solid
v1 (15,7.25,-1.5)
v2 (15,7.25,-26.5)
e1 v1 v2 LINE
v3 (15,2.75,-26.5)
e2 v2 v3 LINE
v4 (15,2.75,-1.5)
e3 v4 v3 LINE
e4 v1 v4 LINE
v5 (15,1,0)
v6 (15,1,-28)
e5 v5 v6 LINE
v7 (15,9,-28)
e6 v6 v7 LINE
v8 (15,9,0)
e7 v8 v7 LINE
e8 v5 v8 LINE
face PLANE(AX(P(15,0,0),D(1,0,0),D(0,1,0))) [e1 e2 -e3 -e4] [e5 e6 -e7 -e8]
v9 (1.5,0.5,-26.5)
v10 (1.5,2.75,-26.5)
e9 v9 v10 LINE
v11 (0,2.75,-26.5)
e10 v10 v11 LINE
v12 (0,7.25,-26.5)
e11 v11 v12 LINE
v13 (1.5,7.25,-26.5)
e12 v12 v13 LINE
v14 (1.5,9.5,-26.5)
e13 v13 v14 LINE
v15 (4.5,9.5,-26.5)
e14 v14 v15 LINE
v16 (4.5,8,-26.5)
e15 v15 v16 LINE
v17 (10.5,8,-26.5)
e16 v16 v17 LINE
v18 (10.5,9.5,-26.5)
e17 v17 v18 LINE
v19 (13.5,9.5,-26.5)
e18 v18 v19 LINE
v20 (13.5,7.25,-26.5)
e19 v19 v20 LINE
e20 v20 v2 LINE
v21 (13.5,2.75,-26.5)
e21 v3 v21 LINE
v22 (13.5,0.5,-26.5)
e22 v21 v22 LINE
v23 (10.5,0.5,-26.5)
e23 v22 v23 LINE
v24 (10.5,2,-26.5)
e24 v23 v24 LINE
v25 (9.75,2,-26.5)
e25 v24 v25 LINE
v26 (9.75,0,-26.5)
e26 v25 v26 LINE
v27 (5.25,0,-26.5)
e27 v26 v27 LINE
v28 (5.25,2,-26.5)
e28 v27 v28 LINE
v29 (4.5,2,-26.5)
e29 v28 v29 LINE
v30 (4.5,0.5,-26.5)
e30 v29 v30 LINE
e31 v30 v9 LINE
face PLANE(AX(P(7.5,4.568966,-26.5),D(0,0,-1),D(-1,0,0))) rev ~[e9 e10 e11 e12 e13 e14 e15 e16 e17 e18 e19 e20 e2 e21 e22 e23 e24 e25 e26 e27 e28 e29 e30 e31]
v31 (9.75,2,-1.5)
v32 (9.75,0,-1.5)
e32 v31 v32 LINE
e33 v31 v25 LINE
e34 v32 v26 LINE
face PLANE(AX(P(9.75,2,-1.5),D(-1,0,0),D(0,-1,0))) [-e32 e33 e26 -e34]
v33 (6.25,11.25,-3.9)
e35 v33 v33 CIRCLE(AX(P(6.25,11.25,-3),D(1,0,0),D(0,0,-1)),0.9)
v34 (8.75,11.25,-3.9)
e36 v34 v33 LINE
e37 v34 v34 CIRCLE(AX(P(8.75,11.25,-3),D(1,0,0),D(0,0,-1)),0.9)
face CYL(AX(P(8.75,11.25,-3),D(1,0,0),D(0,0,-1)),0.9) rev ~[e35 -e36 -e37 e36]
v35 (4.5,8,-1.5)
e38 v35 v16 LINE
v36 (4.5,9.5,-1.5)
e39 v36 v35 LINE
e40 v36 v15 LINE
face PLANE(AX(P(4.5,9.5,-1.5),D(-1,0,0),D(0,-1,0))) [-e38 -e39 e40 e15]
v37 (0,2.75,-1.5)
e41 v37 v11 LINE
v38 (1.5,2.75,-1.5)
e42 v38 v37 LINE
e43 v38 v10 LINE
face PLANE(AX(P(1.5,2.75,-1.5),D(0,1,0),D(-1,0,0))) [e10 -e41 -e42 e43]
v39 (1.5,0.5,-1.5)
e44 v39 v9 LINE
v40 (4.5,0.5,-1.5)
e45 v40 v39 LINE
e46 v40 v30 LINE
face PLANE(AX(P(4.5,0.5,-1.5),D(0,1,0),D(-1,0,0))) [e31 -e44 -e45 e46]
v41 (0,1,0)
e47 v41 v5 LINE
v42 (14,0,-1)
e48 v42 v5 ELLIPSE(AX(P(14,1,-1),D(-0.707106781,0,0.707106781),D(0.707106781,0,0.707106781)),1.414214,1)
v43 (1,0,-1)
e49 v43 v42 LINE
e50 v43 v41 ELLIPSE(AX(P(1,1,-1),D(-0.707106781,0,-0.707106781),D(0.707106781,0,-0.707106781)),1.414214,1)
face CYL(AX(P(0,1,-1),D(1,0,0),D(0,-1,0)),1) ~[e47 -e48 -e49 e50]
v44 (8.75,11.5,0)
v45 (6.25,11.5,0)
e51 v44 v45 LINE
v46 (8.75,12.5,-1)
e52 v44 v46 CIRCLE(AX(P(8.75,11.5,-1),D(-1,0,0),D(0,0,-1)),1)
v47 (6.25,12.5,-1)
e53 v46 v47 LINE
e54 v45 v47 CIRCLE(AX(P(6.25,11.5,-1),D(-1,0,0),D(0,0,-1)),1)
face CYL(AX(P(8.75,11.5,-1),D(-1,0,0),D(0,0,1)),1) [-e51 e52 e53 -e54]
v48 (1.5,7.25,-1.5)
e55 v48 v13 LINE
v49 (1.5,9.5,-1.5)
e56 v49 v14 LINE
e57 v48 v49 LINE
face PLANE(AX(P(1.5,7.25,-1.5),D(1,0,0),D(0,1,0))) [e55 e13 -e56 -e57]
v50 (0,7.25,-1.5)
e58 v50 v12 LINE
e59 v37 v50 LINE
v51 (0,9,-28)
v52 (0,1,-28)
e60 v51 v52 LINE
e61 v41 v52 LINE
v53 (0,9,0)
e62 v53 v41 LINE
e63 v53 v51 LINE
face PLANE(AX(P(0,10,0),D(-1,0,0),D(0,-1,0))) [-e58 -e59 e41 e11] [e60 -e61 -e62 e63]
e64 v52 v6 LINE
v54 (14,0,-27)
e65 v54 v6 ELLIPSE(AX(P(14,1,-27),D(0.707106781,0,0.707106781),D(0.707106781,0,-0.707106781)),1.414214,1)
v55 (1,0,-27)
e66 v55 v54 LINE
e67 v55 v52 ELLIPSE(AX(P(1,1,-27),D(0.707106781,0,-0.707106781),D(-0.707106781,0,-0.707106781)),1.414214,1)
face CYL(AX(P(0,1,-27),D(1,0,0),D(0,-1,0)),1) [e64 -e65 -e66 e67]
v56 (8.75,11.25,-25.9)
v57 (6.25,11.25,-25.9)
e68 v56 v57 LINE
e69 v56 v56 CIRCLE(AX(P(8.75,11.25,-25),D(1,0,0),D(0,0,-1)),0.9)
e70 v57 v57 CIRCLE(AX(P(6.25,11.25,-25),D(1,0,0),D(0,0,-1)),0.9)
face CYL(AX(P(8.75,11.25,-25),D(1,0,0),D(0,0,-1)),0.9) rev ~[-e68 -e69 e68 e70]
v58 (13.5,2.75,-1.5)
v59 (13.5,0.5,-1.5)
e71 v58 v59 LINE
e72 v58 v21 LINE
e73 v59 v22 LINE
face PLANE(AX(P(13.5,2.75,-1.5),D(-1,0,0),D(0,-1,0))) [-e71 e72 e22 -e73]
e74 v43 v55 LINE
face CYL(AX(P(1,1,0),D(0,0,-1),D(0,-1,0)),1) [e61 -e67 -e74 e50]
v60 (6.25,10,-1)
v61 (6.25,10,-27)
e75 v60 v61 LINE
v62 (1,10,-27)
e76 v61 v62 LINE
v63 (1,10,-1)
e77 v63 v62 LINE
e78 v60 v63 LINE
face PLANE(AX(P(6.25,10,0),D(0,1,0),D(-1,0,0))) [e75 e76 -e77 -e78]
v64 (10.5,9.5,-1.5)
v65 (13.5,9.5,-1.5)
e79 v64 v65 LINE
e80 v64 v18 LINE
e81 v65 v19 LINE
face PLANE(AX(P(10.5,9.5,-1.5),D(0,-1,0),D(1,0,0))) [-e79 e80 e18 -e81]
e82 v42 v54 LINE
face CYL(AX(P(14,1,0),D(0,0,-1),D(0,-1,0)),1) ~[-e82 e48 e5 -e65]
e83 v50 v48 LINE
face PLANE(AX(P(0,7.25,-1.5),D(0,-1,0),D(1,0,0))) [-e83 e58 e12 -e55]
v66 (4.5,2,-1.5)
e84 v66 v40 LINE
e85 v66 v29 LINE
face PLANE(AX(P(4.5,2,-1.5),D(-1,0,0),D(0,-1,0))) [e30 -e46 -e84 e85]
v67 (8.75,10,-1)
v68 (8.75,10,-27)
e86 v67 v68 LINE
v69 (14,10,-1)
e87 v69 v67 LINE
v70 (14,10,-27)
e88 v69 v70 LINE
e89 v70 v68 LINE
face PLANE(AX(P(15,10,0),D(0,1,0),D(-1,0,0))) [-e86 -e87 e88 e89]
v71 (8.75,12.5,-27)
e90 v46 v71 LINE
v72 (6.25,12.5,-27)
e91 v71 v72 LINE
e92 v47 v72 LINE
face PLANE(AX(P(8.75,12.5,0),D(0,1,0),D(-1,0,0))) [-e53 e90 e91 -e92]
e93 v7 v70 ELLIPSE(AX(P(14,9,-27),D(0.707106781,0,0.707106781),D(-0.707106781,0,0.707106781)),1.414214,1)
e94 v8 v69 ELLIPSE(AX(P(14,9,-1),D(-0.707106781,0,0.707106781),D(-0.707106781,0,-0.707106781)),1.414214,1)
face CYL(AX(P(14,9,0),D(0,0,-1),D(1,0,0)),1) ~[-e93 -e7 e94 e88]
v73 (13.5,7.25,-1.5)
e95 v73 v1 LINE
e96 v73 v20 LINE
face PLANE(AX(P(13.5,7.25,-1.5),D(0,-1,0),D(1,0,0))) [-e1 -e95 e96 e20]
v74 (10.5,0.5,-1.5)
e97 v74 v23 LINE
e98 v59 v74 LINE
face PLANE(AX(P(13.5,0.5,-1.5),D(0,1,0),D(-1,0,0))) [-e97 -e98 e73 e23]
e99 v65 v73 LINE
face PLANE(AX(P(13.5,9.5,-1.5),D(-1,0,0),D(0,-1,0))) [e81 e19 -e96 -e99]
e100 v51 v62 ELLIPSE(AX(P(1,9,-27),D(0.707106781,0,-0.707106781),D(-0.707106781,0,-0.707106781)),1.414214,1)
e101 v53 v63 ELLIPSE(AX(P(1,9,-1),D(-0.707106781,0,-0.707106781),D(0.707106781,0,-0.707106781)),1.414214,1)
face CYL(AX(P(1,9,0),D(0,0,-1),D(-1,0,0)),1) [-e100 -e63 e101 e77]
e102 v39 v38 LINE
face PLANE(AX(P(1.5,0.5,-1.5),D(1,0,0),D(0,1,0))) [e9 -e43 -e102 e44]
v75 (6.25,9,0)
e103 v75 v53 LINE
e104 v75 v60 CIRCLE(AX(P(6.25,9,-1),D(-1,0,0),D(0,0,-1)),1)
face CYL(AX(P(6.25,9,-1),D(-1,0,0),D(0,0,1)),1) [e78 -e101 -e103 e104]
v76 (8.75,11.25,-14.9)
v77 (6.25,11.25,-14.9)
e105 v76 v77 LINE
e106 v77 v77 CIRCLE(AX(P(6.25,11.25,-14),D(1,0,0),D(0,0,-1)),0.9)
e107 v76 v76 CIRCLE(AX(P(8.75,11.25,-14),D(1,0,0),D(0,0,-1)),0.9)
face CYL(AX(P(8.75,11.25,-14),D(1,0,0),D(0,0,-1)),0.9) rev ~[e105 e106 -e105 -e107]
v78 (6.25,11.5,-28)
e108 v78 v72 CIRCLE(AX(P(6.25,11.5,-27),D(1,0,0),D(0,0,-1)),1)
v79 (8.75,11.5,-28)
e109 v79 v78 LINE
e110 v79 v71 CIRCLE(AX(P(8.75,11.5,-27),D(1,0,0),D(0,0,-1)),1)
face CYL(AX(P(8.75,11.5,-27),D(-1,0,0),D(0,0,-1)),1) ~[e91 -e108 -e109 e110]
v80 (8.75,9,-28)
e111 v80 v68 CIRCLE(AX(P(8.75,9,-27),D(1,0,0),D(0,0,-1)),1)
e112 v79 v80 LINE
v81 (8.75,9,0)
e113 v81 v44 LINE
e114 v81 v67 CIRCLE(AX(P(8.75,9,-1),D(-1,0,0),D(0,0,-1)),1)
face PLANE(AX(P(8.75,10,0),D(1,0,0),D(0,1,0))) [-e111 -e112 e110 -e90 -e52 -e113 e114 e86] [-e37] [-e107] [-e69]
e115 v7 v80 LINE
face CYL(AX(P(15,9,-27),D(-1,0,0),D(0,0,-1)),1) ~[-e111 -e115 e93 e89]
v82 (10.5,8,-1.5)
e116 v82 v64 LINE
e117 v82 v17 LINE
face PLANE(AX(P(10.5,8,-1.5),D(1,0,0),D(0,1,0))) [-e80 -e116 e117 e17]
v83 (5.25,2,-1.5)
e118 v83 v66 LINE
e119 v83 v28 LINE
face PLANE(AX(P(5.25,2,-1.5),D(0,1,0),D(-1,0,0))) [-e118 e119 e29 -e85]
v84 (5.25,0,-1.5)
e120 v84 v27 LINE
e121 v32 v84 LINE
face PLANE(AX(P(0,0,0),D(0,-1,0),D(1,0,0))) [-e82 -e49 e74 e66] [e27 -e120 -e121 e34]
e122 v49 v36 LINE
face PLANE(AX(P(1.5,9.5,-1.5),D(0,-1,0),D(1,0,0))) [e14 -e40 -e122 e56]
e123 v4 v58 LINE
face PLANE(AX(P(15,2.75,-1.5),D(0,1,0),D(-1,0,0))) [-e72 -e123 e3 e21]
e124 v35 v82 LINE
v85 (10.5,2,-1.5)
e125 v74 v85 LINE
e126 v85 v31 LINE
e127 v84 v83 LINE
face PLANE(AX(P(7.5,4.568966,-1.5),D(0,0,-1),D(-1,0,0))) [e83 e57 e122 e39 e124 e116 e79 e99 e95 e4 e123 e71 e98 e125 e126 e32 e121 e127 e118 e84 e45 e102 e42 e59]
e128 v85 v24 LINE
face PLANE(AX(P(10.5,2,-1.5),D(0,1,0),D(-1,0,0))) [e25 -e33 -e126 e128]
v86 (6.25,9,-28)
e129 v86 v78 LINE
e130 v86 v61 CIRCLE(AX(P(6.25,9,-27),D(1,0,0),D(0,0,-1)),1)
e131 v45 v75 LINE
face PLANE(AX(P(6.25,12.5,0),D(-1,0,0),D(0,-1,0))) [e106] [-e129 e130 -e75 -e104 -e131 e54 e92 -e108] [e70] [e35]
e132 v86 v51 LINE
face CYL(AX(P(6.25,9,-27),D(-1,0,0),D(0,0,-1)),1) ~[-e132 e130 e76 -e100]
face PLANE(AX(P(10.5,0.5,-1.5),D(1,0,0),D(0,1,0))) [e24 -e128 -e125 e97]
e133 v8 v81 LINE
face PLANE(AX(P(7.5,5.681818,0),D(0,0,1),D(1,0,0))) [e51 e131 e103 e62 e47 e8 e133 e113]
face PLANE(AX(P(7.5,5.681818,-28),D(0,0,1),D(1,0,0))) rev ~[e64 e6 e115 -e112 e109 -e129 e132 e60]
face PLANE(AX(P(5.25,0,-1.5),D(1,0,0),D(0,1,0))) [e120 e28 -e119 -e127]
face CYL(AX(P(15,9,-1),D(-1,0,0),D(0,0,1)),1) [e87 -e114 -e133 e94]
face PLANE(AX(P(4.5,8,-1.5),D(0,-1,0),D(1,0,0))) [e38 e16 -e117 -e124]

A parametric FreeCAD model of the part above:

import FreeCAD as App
import Part
import Sketcher

V = App.Vector
Q = App.Units.Quantity


def edges_at(feature, points):
    """Names of the edges that pass closest to the given points."""
    edges = feature.Shape.Edges
    near = lambda p: min(range(len(edges)), key=lambda i: edges[i].distToShape(Part.Vertex(*p))[0])
    return sorted({f"Edge{near(p) + 1}" for p in points})


def add_polygon(sketch, points):
    """Adds a closed chain of lines whose ends are joined by coincident constraints."""
    first, n = sketch.GeometryCount, len(points)
    for a, b in zip(points, points[1:] + points[:1]):
        sketch.addGeometry(Part.LineSegment(App.Vector(*a, 0), App.Vector(*b, 0)), False)
    for i in range(n):
        sketch.addConstraint(Sketcher.Constraint("Coincident", first + i, 2, first + (i + 1) % n, 1))

doc = App.newDocument("Part")
body = doc.addObject("PartDesign::Body", "Body")

# Sketch on XY plane
sketch1 = body.newObject("Sketcher::SketchObject", "Sketch")
sketch1.AttachmentSupport = (doc.getObject("XY_Plane"), [""])
sketch1.MapMode = "FlatFace"
add_polygon(sketch1, [(0, 0), (15, 0), (15, 10), (8.75, 10), (8.75, 12.5), (6.25, 12.5), (6.25, 10), (0, 10)])  # lines 0-7
sketch1.addConstraint([
    Sketcher.Constraint("Horizontal", 0),
    Sketcher.Constraint("Vertical", 1),
    Sketcher.Constraint("Horizontal", 2),
    Sketcher.Constraint("Vertical", 3),
    Sketcher.Constraint("Horizontal", 4),
    Sketcher.Constraint("Vertical", 5),
    Sketcher.Constraint("Horizontal", 6),
    Sketcher.Constraint("Vertical", 7),
    Sketcher.Constraint("Coincident", 7, 2, -1, 1),
    Sketcher.Constraint("Horizontal", 2, 2, 5, 2),
    Sketcher.Constraint("Equal", 2, 6),
    Sketcher.Constraint("Equal", 4, 3),
    Sketcher.Constraint("DistanceX", 0, 1, 0, 2, Q("15 mm")),
    Sketcher.Constraint("DistanceY", 1, 1, 1, 2, Q("10 mm")),
    Sketcher.Constraint("DistanceX", 4, 2, 4, 1, Q("2.5 mm")),
])
pad1 = body.newObject("PartDesign::Pad", "Pad")
pad1.Profile = sketch1
pad1.Length = 28
pad1.Reversed = True

# Sketch on XY plane
sketch2 = body.newObject("Sketcher::SketchObject", "Sketch001")
sketch2.AttachmentSupport = (doc.getObject("XY_Plane"), [""])
sketch2.MapMode = "FlatFace"
sketch2.AttachmentOffset = App.Placement(V(0, 0, -1.5), App.Rotation())
add_polygon(sketch2, [(10.5, 9.5), (10.5, 8), (4.5, 8), (4.5, 9.5), (1.5, 9.5), (1.5, 7.25), (0, 7.25), (0, 2.75), (1.5, 2.75), (1.5, 0.5), (4.5, 0.5), (4.5, 2), (5.25, 2), (5.25, 0), (9.75, 0), (9.75, 2), (10.5, 2), (10.5, 0.5), (13.5, 0.5), (13.5, 2.75), (15, 2.75), (15, 7.25), (13.5, 7.25), (13.5, 9.5)])  # lines 0-23
sketch2.addConstraint([
    Sketcher.Constraint("Vertical", 0),
    Sketcher.Constraint("Horizontal", 1),
    Sketcher.Constraint("Vertical", 2),
    Sketcher.Constraint("Horizontal", 3),
    Sketcher.Constraint("Vertical", 4),
    Sketcher.Constraint("Horizontal", 5),
    Sketcher.Constraint("Vertical", 6),
    Sketcher.Constraint("Horizontal", 7),
    Sketcher.Constraint("Vertical", 8),
    Sketcher.Constraint("Horizontal", 9),
    Sketcher.Constraint("Vertical", 10),
    Sketcher.Constraint("Horizontal", 11),
    Sketcher.Constraint("Vertical", 12),
    Sketcher.Constraint("Horizontal", 13),
    Sketcher.Constraint("Vertical", 14),
    Sketcher.Constraint("Horizontal", 15),
    Sketcher.Constraint("Vertical", 16),
    Sketcher.Constraint("Horizontal", 17),
    Sketcher.Constraint("Vertical", 18),
    Sketcher.Constraint("Horizontal", 19),
    Sketcher.Constraint("Vertical", 20),
    Sketcher.Constraint("Horizontal", 21),
    Sketcher.Constraint("Vertical", 22),
    Sketcher.Constraint("Horizontal", 23),
    Sketcher.Constraint("PointOnObject", 5, 2, -2),
    Sketcher.Constraint("PointOnObject", 12, 2, -1),
    Sketcher.Constraint("Horizontal", 11, 2, 14, 2),
    Sketcher.Constraint("Horizontal", 9, 2, 16, 2),
    Sketcher.Constraint("Horizontal", 7, 2, 18, 2),
    Sketcher.Constraint("Horizontal", 5, 2, 20, 2),
    Sketcher.Constraint("Horizontal", 3, 2, 22, 2),
    Sketcher.Constraint("Vertical", 4, 2, 7, 2),
    Sketcher.Constraint("Vertical", 2, 2, 9, 2),
    Sketcher.Constraint("Vertical", 0, 2, 15, 2),
    Sketcher.Constraint("Vertical", 18, 2, 21, 2),
    Sketcher.Constraint("Equal", 11, 15),
    Sketcher.Constraint("Equal", 9, 17),
    Sketcher.Constraint("Equal", 7, 19),
    Sketcher.Constraint("Equal", 21, 0),
    Sketcher.Constraint("Equal", 13, 6),
    Sketcher.Constraint("Equal", 4, 8),
    Sketcher.Constraint("Equal", 2, 10),
    Sketcher.Constraint("DistanceX", 1, 2, 1, 1, Q("6 mm")),
    Sketcher.Constraint("DistanceX", 3, 2, 3, 1, Q("3 mm")),
    Sketcher.Constraint("DistanceY", 12, 2, 12, 1, Q("2 mm")),
    Sketcher.Constraint("DistanceX", 5, 2, 5, 1, Q("1.5 mm")),
    Sketcher.Constraint("DistanceX", 13, 1, 13, 2, Q("4.5 mm")),
    Sketcher.Constraint("DistanceY", -1, 1, 0, 2, Q("8 mm")),
])
pocket1 = body.newObject("PartDesign::Pocket", "Pocket")
pocket1.Profile = sketch2
pocket1.Length = 25

# Sketch on YZ plane
sketch3 = body.newObject("Sketcher::SketchObject", "Sketch002")
sketch3.AttachmentSupport = (doc.getObject("YZ_Plane"), [""])
sketch3.MapMode = "FlatFace"
sketch3.AttachmentOffset = App.Placement(V(0, 0, 8.75), App.Rotation())
sketch3.addGeometry([
    Part.Circle(V(11.25, -14, 0), V(0, 0, 1), 0.9),
    Part.Circle(V(11.25, -3, 0), V(0, 0, 1), 0.9),
    Part.Circle(V(11.25, -25, 0), V(0, 0, 1), 0.9),
], False)
sketch3.addConstraint([
    Sketcher.Constraint("Equal", 0, 1),
    Sketcher.Constraint("Equal", 1, 2),
    Sketcher.Constraint("Vertical", 0, 3, 1, 3),
    Sketcher.Constraint("Vertical", 1, 3, 2, 3),
    Sketcher.Constraint("Diameter", 0, Q("1.8 mm")),
    Sketcher.Constraint("DistanceY", 0, 3, -1, 1, Q("14 mm")),
    Sketcher.Constraint("DistanceY", 1, 3, -1, 1, Q("3 mm")),
    Sketcher.Constraint("DistanceY", 2, 3, -1, 1, Q("25 mm")),
    Sketcher.Constraint("DistanceX", -1, 1, 0, 3, Q("11.25 mm")),
])
pocket2 = body.newObject("PartDesign::Pocket", "Pocket001")
pocket2.Profile = sketch3
pocket2.Length = 2.5
doc.recompute()

fillet = body.newObject("PartDesign::Fillet", "Fillet")
fillet.Base = (pocket2, edges_at(pocket2, [
    (7.5, 0, 0),
    (11.875, 10, -28),
    (0, 10, -14),
    (15, 10, -14),
    (15, 0, -14),
    (0, 0, -14),
    (7.5, 12.5, -28),
    (3.125, 10, -28),
    (7.5, 0, -28),
    (3.125, 10, 0),
    (7.5, 12.5, 0),
    (11.875, 10, 0),
]))
fillet.Radius = 1

doc.recompute()
